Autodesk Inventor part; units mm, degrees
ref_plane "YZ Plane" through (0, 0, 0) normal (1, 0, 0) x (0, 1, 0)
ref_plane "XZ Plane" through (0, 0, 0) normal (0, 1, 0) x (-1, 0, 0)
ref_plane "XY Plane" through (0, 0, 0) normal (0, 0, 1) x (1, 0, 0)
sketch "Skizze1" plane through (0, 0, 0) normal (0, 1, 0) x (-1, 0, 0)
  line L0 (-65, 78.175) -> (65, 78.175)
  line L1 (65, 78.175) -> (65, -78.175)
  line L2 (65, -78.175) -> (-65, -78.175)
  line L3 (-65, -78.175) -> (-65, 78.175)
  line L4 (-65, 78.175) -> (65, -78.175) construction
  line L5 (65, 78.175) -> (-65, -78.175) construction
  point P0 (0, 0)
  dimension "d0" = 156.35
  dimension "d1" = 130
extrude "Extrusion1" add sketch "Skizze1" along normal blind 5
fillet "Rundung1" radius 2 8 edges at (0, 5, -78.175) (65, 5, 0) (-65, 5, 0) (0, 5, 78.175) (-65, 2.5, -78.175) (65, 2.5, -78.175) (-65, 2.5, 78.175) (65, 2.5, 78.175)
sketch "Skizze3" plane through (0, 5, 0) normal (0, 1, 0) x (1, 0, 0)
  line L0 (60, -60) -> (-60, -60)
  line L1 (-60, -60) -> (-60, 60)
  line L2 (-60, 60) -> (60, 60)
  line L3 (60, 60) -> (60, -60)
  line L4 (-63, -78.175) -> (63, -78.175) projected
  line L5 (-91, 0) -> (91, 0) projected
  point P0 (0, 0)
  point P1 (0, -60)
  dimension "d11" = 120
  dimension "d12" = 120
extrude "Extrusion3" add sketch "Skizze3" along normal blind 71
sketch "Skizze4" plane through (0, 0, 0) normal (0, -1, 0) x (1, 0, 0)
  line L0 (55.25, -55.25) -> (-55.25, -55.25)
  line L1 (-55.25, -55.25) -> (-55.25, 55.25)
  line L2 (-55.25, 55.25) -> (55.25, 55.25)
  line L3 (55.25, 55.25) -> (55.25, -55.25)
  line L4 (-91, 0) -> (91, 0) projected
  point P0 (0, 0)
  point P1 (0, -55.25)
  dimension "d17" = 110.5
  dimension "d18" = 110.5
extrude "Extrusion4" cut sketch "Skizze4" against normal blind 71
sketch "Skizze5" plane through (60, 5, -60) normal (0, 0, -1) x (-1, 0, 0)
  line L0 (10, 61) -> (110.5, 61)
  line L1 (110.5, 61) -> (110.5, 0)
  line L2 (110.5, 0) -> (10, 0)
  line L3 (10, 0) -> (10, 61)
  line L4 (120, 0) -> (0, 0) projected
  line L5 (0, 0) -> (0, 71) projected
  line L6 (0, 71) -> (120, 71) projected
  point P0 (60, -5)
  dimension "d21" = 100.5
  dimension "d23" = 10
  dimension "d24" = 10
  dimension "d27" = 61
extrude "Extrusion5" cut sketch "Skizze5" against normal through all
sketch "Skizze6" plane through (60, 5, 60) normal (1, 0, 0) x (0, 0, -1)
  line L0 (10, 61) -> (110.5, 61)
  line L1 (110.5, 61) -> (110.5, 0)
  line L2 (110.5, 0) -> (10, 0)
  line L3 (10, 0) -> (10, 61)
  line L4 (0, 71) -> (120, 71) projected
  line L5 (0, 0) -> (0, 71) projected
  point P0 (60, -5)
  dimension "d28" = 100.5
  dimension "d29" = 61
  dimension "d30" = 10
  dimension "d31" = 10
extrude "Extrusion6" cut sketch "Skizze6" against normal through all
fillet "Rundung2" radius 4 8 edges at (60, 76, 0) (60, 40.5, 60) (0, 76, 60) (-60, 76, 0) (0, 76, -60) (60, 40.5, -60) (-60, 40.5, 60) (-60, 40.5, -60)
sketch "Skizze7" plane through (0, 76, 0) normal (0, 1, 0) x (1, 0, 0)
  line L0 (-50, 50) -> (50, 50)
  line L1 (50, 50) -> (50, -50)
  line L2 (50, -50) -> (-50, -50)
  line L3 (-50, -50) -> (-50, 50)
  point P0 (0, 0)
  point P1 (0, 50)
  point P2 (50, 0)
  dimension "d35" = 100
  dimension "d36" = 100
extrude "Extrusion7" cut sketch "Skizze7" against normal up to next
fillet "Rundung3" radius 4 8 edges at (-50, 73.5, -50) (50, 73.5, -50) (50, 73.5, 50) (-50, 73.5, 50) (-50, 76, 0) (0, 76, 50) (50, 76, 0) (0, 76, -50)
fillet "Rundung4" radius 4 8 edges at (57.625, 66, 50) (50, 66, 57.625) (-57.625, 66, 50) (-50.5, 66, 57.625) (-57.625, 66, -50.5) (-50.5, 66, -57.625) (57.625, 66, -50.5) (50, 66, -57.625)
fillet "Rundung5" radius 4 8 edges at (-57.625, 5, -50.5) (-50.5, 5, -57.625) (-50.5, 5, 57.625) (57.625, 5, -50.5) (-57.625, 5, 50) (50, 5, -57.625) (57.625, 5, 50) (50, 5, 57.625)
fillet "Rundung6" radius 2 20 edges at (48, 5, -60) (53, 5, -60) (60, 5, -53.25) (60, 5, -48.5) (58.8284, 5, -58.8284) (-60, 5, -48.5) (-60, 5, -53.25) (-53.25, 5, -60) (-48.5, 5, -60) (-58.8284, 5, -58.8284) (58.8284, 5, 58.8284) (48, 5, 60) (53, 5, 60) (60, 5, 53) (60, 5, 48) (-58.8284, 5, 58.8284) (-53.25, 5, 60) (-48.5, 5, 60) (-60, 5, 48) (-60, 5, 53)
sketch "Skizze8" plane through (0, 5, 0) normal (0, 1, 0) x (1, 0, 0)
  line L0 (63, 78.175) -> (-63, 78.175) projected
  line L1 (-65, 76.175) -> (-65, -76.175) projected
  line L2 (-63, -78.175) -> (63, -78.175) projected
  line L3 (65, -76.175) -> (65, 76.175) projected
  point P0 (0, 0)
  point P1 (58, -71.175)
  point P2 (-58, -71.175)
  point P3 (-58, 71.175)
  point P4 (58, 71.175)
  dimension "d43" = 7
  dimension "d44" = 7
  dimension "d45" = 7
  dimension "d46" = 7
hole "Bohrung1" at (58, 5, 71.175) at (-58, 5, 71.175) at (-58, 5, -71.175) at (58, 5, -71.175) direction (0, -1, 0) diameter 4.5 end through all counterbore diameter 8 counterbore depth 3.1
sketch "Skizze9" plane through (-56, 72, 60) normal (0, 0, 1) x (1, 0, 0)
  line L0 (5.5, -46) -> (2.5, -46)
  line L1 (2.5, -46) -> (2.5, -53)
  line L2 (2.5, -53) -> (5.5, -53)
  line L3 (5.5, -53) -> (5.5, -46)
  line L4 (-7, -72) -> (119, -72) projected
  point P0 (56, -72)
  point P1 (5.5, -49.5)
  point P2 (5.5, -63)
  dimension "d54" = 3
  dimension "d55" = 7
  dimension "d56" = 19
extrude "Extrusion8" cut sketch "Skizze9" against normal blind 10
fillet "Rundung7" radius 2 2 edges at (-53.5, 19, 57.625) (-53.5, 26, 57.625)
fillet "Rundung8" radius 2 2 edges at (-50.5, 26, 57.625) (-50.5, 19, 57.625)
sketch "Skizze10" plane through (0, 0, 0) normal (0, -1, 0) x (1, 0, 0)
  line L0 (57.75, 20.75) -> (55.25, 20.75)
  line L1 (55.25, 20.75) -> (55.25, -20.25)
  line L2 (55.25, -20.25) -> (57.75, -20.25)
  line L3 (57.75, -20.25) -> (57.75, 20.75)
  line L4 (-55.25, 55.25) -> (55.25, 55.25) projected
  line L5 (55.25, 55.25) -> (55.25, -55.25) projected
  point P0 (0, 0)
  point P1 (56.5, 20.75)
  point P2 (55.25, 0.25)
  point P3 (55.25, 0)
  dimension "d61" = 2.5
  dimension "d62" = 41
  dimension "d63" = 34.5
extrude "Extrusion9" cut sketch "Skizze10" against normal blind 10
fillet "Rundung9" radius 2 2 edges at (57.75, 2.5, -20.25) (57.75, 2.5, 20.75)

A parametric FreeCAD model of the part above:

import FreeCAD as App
import Part
import Sketcher
from FreeCAD import Vector


def edges_at(feature, points):
    """Names of the edges that pass closest to the given points."""
    edges = feature.Shape.Edges
    near = lambda p: min(range(len(edges)), key=lambda i: edges[i].distToShape(Part.Vertex(*p))[0])
    return sorted({f"Edge{near(p) + 1}" for p in points})


def add_polygon(sketch, points):
    """Adds a closed chain of lines whose ends are joined by coincident constraints."""
    first, n = sketch.GeometryCount, len(points)
    for a, b in zip(points, points[1:] + points[:1]):
        sketch.addGeometry(Part.LineSegment(App.Vector(*a, 0), App.Vector(*b, 0)), False)
    for i in range(n):
        sketch.addConstraint(Sketcher.Constraint("Coincident", first + i, 2, first + (i + 1) % n, 1))

doc = App.newDocument("Part")
body = doc.addObject("PartDesign::Body", "Body")

# Sketch on XZ plane
sketch1 = body.newObject("Sketcher::SketchObject", "Sketch")
sketch1.AttachmentSupport = (doc.getObject("XZ_Plane"), [""])
sketch1.MapMode = "FlatFace"
add_polygon(sketch1, [(-65, 78), (65, 78), (65, -78), (-65, -78)])  # lines 0-3
sketch1.addConstraint([
    Sketcher.Constraint("Horizontal", 0),
    Sketcher.Constraint("Vertical", 1),
    Sketcher.Constraint("Horizontal", 2),
    Sketcher.Constraint("Vertical", 3),
    Sketcher.Constraint("Symmetric", 0, 2, 2, 2, -1, 1),
    Sketcher.Constraint("DistanceX", 0, 1, 0, 2, 130.0),
    Sketcher.Constraint("DistanceY", 1, 2, 1, 1, 156.35),
])
pad1 = body.newObject("PartDesign::Pad", "Pad")
pad1.Profile = sketch1
pad1.Length = 5
pad1.Reversed = True
doc.recompute()

fillet = body.newObject("PartDesign::Fillet", "Fillet")
fillet.Base = (pad1, edges_at(pad1, [
    (0, 5, -78.175),
    (65, 5, 0),
    (-65, 5, 0),
    (0, 5, 78.175),
    (-65, 2.5, -78.175),
    (65, 2.5, -78.175),
    (-65, 2.5, 78.175),
    (65, 2.5, 78.175),
]))
fillet.Radius = 2

# Sketch on XZ plane
sketch2 = body.newObject("Sketcher::SketchObject", "Sketch001")
sketch2.AttachmentSupport = (doc.getObject("XZ_Plane"), [""])
sketch2.MapMode = "FlatFace"
sketch2.AttachmentOffset = App.Placement(Vector(0, 0, -5), App.Rotation())
add_polygon(sketch2, [(-60, 60), (60, 60), (60, -60), (-60, -60)])  # lines 0-3
sketch2.addConstraint([
    Sketcher.Constraint("Horizontal", 0),
    Sketcher.Constraint("Vertical", 1),
    Sketcher.Constraint("Horizontal", 2),
    Sketcher.Constraint("Vertical", 3),
    Sketcher.Constraint("Symmetric", 0, 2, 2, 2, -1, 1),
    Sketcher.Constraint("Equal", 2, 1),
    Sketcher.Constraint("DistanceX", 0, 1, 0, 2, 120.0),
])
pad2 = body.newObject("PartDesign::Pad", "Pad001")
pad2.Profile = sketch2
pad2.Length = 71
pad2.Reversed = True

# Sketch on XZ plane
sketch3 = body.newObject("Sketcher::SketchObject", "Sketch002")
sketch3.AttachmentSupport = (doc.getObject("XZ_Plane"), [""])
sketch3.MapMode = "FlatFace"
add_polygon(sketch3, [(-55, -55), (55, -55), (55, 55), (-55, 55)])  # lines 0-3
sketch3.addConstraint([
    Sketcher.Constraint("Horizontal", 0),
    Sketcher.Constraint("Vertical", 1),
    Sketcher.Constraint("Horizontal", 2),
    Sketcher.Constraint("Vertical", 3),
    Sketcher.Constraint("Symmetric", 0, 2, 2, 2, -1, 1),
    Sketcher.Constraint("Equal", 2, 1),
    Sketcher.Constraint("DistanceX", 0, 1, 0, 2, 110.5),
])
pocket1 = body.newObject("PartDesign::Pocket", "Pocket")
pocket1.Profile = sketch3
pocket1.Length = 71

# Sketch on XY plane
sketch4 = body.newObject("Sketcher::SketchObject", "Sketch003")
sketch4.AttachmentSupport = (doc.getObject("XY_Plane"), [""])
sketch4.MapMode = "FlatFace"
sketch4.AttachmentOffset = App.Placement(Vector(0, 0, -60), App.Rotation())
add_polygon(sketch4, [(-50, 66), (50, 66), (50, 5), (-50, 5)])  # lines 0-3
sketch4.addConstraint([
    Sketcher.Constraint("Horizontal", 0),
    Sketcher.Constraint("Vertical", 1),
    Sketcher.Constraint("Horizontal", 2),
    Sketcher.Constraint("Vertical", 3),
    Sketcher.Constraint("DistanceY", 1, 2, 1, 1, 61.0),
    Sketcher.Constraint("DistanceX", 0, 1, 0, 2, 100.5),
    Sketcher.Constraint("DistanceX", -1, 1, 0, 2, 50.0),
    Sketcher.Constraint("DistanceY", -1, 1, 0, 2, 66.0),
])
pocket2 = body.newObject("PartDesign::Pocket", "Pocket001")
pocket2.Profile = sketch4
pocket2.Type = "ThroughAll"
pocket2.Reversed = True

# Sketch on YZ plane
sketch5 = body.newObject("Sketcher::SketchObject", "Sketch004")
sketch5.AttachmentSupport = (doc.getObject("YZ_Plane"), [""])
sketch5.MapMode = "FlatFace"
sketch5.AttachmentOffset = App.Placement(Vector(0, 0, 60), App.Rotation())
add_polygon(sketch5, [(66, -50), (66, 50), (5, 50), (5, -50)])  # lines 0-3
sketch5.addConstraint([
    Sketcher.Constraint("Vertical", 0),
    Sketcher.Constraint("Horizontal", 1),
    Sketcher.Constraint("Vertical", 2),
    Sketcher.Constraint("Horizontal", 3),
    Sketcher.Constraint("DistanceX", 1, 2, 1, 1, 61.0),
    Sketcher.Constraint("DistanceY", 0, 1, 0, 2, 100.5),
    Sketcher.Constraint("DistanceX", -1, 1, 0, 2, 66.0),
    Sketcher.Constraint("DistanceY", -1, 1, 0, 2, 50.0),
])
pocket3 = body.newObject("PartDesign::Pocket", "Pocket002")
pocket3.Profile = sketch5
pocket3.Type = "ThroughAll"
doc.recompute()

fillet2 = body.newObject("PartDesign::Fillet", "Fillet001")
fillet2.Base = (pocket3, edges_at(pocket3, [
    (60, 76, 0),
    (60, 40.5, 60),
    (0, 76, 60),
    (-60, 76, 0),
    (0, 76, -60),
    (60, 40.5, -60),
    (-60, 40.5, 60),
    (-60, 40.5, -60),
]))
fillet2.Radius = 4

# Sketch on XZ plane
sketch6 = body.newObject("Sketcher::SketchObject", "Sketch005")
sketch6.AttachmentSupport = (doc.getObject("XZ_Plane"), [""])
sketch6.MapMode = "FlatFace"
sketch6.AttachmentOffset = App.Placement(Vector(0, 0, -76), App.Rotation())
add_polygon(sketch6, [(50, -50), (-50, -50), (-50, 50), (50, 50)])  # lines 0-3
sketch6.addConstraint([
    Sketcher.Constraint("Horizontal", 0),
    Sketcher.Constraint("Vertical", 1),
    Sketcher.Constraint("Horizontal", 2),
    Sketcher.Constraint("Vertical", 3),
    Sketcher.Constraint("Symmetric", 0, 2, 2, 2, -1, 1),
    Sketcher.Constraint("Equal", 2, 1),
    Sketcher.Constraint("DistanceX", 0, 2, 0, 1, 100.0),
])
pocket4 = body.newObject("PartDesign::Pocket", "Pocket003")
pocket4.Profile = sketch6
pocket4.Type = "UpToFirst"
pocket4.Reversed = True
doc.recompute()

fillet3 = body.newObject("PartDesign::Fillet", "Fillet002")
fillet3.Base = (pocket4, edges_at(pocket4, [
    (-50, 73.5, -50),
    (50, 73.5, -50),
    (50, 73.5, 50),
    (-50, 73.5, 50),
    (-50, 76, 0),
    (0, 76, 50),
    (50, 76, 0),
    (0, 76, -50),
]))
fillet3.Radius = 4
doc.recompute()

fillet4 = body.newObject("PartDesign::Fillet", "Fillet003")
fillet4.Base = (fillet3, edges_at(fillet3, [
    (57.625, 66, 50),
    (50, 66, 57.625),
    (-57.625, 66, 50),
    (-50.5, 66, 57.625),
    (-57.625, 66, -50.5),
    (-50.5, 66, -57.625),
    (57.625, 66, -50.5),
    (50, 66, -57.625),
]))
fillet4.Radius = 4
doc.recompute()

fillet5 = body.newObject("PartDesign::Fillet", "Fillet004")
fillet5.Base = (fillet4, edges_at(fillet4, [
    (-57.625, 5, -50.5),
    (-50.5, 5, -57.625),
    (-50.5, 5, 57.625),
    (57.625, 5, -50.5),
    (-57.625, 5, 50),
    (50, 5, -57.625),
    (57.625, 5, 50),
    (50, 5, 57.625),
]))
fillet5.Radius = 4
doc.recompute()

fillet6 = body.newObject("PartDesign::Fillet", "Fillet005")
fillet6.Base = (fillet5, edges_at(fillet5, [
    (48, 5, -60),
    (53, 5, -60),
    (60, 5, -53.25),
    (60, 5, -48.5),
    (58.828, 5, -58.828),
    (-60, 5, -48.5),
    (-60, 5, -53.25),
    (-53.25, 5, -60),
    (-48.5, 5, -60),
    (-58.828, 5, -58.828),
    (58.828, 5, 58.828),
    (48, 5, 60),
    (53, 5, 60),
    (60, 5, 53),
    (60, 5, 48),
    (-58.828, 5, 58.828),
    (-53.25, 5, 60),
    (-48.5, 5, 60),
    (-60, 5, 48),
    (-60, 5, 53),
]))
fillet6.Radius = 2

# Sketch on XZ plane
sketch7 = body.newObject("Sketcher::SketchObject", "Sketch006")
sketch7.AttachmentSupport = (doc.getObject("XZ_Plane"), [""])
sketch7.MapMode = "FlatFace"
sketch7.AttachmentOffset = App.Placement(Vector(0, 0, -5), App.Rotation())
sketch7.addGeometry([
    Part.Circle(Vector(58, 71.2, 0), Vector(0, 0, 1), 2.2),
    Part.Circle(Vector(-58, 71.2, 0), Vector(0, 0, 1), 2.2),
    Part.Circle(Vector(-58, -71.2, 0), Vector(0, 0, 1), 2.2),
    Part.Circle(Vector(58, -71.2, 0), Vector(0, 0, 1), 2.2),
], False)
sketch7.addConstraint([
    Sketcher.Constraint("Equal", 0, 1),
    Sketcher.Constraint("Equal", 1, 2),
    Sketcher.Constraint("Equal", 2, 3),
    Sketcher.Constraint("Symmetric", 0, 3, 2, 3, -1, 1),
    Sketcher.Constraint("Symmetric", 1, 3, 3, 3, -1, 1),
    Sketcher.Constraint("Symmetric", 0, 3, 1, 3, -2),
    Sketcher.Constraint("Diameter", 0, 4.5),
    Sketcher.Constraint("DistanceX", -1, 1, 0, 3, 58.0),
    Sketcher.Constraint("DistanceY", 2, 3, 1, 3, 142.35),
])
doc.recompute()
hole = body.newObject("PartDesign::Hole", "Hole")
hole.Profile = sketch7
hole.ThreadType = "None"
hole.Diameter = 4.5
hole.DepthType = "ThroughAll"
hole.HoleCutType = "Counterbore"
hole.HoleCutDiameter = 8
hole.HoleCutDepth = 3.1
hole.Reversed = True

# Sketch on XY plane
sketch8 = body.newObject("Sketcher::SketchObject", "Sketch007")
sketch8.AttachmentSupport = (doc.getObject("XY_Plane"), [""])
sketch8.MapMode = "FlatFace"
sketch8.AttachmentOffset = App.Placement(Vector(0, 0, 60), App.Rotation())
add_polygon(sketch8, [(-50.5, 19), (-50.5, 26), (-53.5, 26), (-53.5, 19)])  # lines 0-3
sketch8.addConstraint([
    Sketcher.Constraint("Vertical", 0),
    Sketcher.Constraint("Horizontal", 1),
    Sketcher.Constraint("Vertical", 2),
    Sketcher.Constraint("Horizontal", 3),
    Sketcher.Constraint("DistanceX", 1, 2, 1, 1, 3.0),
    Sketcher.Constraint("DistanceY", 0, 1, 0, 2, 7.0),
    Sketcher.Constraint("DistanceY", -1, 1, 2, 2, 19.0),
    Sketcher.Constraint("DistanceX", 0, 2, -1, 1, 50.5),
])
pocket5 = body.newObject("PartDesign::Pocket", "Pocket004")
pocket5.Profile = sketch8
pocket5.Length = 10
doc.recompute()

fillet7 = body.newObject("PartDesign::Fillet", "Fillet006")
fillet7.Base = (pocket5, edges_at(pocket5, [(-53.5, 19, 57.625), (-53.5, 26, 57.625)]))
fillet7.Radius = 2
doc.recompute()

fillet8 = body.newObject("PartDesign::Fillet", "Fillet007")
fillet8.Base = (fillet7, edges_at(fillet7, [(-50.5, 26, 57.625), (-50.5, 19, 57.625)]))
fillet8.Radius = 2

# Sketch on XZ plane
sketch9 = body.newObject("Sketcher::SketchObject", "Sketch008")
sketch9.AttachmentSupport = (doc.getObject("XZ_Plane"), [""])
sketch9.MapMode = "FlatFace"
add_polygon(sketch9, [(57.8, -20.2), (57.8, 20.8), (55.2, 20.8), (55.2, -20.2)])  # lines 0-3
sketch9.addConstraint([
    Sketcher.Constraint("Vertical", 0),
    Sketcher.Constraint("Horizontal", 1),
    Sketcher.Constraint("Vertical", 2),
    Sketcher.Constraint("Horizontal", 3),
    Sketcher.Constraint("DistanceY", 0, 1, 0, 2, 41.0),
    Sketcher.Constraint("DistanceX", 1, 2, 1, 1, 2.5),
    Sketcher.Constraint("DistanceX", -1, 1, 0, 2, 57.75),
    Sketcher.Constraint("DistanceY", -1, 1, 0, 2, 20.75),
])
pocket6 = body.newObject("PartDesign::Pocket", "Pocket005")
pocket6.Profile = sketch9
pocket6.Length = 10
doc.recompute()

fillet9 = body.newObject("PartDesign::Fillet", "Fillet008")
fillet9.Base = (pocket6, edges_at(pocket6, [(57.75, 2.5, -20.25), (57.75, 2.5, 20.75)]))
fillet9.Radius = 2

doc.recompute()
